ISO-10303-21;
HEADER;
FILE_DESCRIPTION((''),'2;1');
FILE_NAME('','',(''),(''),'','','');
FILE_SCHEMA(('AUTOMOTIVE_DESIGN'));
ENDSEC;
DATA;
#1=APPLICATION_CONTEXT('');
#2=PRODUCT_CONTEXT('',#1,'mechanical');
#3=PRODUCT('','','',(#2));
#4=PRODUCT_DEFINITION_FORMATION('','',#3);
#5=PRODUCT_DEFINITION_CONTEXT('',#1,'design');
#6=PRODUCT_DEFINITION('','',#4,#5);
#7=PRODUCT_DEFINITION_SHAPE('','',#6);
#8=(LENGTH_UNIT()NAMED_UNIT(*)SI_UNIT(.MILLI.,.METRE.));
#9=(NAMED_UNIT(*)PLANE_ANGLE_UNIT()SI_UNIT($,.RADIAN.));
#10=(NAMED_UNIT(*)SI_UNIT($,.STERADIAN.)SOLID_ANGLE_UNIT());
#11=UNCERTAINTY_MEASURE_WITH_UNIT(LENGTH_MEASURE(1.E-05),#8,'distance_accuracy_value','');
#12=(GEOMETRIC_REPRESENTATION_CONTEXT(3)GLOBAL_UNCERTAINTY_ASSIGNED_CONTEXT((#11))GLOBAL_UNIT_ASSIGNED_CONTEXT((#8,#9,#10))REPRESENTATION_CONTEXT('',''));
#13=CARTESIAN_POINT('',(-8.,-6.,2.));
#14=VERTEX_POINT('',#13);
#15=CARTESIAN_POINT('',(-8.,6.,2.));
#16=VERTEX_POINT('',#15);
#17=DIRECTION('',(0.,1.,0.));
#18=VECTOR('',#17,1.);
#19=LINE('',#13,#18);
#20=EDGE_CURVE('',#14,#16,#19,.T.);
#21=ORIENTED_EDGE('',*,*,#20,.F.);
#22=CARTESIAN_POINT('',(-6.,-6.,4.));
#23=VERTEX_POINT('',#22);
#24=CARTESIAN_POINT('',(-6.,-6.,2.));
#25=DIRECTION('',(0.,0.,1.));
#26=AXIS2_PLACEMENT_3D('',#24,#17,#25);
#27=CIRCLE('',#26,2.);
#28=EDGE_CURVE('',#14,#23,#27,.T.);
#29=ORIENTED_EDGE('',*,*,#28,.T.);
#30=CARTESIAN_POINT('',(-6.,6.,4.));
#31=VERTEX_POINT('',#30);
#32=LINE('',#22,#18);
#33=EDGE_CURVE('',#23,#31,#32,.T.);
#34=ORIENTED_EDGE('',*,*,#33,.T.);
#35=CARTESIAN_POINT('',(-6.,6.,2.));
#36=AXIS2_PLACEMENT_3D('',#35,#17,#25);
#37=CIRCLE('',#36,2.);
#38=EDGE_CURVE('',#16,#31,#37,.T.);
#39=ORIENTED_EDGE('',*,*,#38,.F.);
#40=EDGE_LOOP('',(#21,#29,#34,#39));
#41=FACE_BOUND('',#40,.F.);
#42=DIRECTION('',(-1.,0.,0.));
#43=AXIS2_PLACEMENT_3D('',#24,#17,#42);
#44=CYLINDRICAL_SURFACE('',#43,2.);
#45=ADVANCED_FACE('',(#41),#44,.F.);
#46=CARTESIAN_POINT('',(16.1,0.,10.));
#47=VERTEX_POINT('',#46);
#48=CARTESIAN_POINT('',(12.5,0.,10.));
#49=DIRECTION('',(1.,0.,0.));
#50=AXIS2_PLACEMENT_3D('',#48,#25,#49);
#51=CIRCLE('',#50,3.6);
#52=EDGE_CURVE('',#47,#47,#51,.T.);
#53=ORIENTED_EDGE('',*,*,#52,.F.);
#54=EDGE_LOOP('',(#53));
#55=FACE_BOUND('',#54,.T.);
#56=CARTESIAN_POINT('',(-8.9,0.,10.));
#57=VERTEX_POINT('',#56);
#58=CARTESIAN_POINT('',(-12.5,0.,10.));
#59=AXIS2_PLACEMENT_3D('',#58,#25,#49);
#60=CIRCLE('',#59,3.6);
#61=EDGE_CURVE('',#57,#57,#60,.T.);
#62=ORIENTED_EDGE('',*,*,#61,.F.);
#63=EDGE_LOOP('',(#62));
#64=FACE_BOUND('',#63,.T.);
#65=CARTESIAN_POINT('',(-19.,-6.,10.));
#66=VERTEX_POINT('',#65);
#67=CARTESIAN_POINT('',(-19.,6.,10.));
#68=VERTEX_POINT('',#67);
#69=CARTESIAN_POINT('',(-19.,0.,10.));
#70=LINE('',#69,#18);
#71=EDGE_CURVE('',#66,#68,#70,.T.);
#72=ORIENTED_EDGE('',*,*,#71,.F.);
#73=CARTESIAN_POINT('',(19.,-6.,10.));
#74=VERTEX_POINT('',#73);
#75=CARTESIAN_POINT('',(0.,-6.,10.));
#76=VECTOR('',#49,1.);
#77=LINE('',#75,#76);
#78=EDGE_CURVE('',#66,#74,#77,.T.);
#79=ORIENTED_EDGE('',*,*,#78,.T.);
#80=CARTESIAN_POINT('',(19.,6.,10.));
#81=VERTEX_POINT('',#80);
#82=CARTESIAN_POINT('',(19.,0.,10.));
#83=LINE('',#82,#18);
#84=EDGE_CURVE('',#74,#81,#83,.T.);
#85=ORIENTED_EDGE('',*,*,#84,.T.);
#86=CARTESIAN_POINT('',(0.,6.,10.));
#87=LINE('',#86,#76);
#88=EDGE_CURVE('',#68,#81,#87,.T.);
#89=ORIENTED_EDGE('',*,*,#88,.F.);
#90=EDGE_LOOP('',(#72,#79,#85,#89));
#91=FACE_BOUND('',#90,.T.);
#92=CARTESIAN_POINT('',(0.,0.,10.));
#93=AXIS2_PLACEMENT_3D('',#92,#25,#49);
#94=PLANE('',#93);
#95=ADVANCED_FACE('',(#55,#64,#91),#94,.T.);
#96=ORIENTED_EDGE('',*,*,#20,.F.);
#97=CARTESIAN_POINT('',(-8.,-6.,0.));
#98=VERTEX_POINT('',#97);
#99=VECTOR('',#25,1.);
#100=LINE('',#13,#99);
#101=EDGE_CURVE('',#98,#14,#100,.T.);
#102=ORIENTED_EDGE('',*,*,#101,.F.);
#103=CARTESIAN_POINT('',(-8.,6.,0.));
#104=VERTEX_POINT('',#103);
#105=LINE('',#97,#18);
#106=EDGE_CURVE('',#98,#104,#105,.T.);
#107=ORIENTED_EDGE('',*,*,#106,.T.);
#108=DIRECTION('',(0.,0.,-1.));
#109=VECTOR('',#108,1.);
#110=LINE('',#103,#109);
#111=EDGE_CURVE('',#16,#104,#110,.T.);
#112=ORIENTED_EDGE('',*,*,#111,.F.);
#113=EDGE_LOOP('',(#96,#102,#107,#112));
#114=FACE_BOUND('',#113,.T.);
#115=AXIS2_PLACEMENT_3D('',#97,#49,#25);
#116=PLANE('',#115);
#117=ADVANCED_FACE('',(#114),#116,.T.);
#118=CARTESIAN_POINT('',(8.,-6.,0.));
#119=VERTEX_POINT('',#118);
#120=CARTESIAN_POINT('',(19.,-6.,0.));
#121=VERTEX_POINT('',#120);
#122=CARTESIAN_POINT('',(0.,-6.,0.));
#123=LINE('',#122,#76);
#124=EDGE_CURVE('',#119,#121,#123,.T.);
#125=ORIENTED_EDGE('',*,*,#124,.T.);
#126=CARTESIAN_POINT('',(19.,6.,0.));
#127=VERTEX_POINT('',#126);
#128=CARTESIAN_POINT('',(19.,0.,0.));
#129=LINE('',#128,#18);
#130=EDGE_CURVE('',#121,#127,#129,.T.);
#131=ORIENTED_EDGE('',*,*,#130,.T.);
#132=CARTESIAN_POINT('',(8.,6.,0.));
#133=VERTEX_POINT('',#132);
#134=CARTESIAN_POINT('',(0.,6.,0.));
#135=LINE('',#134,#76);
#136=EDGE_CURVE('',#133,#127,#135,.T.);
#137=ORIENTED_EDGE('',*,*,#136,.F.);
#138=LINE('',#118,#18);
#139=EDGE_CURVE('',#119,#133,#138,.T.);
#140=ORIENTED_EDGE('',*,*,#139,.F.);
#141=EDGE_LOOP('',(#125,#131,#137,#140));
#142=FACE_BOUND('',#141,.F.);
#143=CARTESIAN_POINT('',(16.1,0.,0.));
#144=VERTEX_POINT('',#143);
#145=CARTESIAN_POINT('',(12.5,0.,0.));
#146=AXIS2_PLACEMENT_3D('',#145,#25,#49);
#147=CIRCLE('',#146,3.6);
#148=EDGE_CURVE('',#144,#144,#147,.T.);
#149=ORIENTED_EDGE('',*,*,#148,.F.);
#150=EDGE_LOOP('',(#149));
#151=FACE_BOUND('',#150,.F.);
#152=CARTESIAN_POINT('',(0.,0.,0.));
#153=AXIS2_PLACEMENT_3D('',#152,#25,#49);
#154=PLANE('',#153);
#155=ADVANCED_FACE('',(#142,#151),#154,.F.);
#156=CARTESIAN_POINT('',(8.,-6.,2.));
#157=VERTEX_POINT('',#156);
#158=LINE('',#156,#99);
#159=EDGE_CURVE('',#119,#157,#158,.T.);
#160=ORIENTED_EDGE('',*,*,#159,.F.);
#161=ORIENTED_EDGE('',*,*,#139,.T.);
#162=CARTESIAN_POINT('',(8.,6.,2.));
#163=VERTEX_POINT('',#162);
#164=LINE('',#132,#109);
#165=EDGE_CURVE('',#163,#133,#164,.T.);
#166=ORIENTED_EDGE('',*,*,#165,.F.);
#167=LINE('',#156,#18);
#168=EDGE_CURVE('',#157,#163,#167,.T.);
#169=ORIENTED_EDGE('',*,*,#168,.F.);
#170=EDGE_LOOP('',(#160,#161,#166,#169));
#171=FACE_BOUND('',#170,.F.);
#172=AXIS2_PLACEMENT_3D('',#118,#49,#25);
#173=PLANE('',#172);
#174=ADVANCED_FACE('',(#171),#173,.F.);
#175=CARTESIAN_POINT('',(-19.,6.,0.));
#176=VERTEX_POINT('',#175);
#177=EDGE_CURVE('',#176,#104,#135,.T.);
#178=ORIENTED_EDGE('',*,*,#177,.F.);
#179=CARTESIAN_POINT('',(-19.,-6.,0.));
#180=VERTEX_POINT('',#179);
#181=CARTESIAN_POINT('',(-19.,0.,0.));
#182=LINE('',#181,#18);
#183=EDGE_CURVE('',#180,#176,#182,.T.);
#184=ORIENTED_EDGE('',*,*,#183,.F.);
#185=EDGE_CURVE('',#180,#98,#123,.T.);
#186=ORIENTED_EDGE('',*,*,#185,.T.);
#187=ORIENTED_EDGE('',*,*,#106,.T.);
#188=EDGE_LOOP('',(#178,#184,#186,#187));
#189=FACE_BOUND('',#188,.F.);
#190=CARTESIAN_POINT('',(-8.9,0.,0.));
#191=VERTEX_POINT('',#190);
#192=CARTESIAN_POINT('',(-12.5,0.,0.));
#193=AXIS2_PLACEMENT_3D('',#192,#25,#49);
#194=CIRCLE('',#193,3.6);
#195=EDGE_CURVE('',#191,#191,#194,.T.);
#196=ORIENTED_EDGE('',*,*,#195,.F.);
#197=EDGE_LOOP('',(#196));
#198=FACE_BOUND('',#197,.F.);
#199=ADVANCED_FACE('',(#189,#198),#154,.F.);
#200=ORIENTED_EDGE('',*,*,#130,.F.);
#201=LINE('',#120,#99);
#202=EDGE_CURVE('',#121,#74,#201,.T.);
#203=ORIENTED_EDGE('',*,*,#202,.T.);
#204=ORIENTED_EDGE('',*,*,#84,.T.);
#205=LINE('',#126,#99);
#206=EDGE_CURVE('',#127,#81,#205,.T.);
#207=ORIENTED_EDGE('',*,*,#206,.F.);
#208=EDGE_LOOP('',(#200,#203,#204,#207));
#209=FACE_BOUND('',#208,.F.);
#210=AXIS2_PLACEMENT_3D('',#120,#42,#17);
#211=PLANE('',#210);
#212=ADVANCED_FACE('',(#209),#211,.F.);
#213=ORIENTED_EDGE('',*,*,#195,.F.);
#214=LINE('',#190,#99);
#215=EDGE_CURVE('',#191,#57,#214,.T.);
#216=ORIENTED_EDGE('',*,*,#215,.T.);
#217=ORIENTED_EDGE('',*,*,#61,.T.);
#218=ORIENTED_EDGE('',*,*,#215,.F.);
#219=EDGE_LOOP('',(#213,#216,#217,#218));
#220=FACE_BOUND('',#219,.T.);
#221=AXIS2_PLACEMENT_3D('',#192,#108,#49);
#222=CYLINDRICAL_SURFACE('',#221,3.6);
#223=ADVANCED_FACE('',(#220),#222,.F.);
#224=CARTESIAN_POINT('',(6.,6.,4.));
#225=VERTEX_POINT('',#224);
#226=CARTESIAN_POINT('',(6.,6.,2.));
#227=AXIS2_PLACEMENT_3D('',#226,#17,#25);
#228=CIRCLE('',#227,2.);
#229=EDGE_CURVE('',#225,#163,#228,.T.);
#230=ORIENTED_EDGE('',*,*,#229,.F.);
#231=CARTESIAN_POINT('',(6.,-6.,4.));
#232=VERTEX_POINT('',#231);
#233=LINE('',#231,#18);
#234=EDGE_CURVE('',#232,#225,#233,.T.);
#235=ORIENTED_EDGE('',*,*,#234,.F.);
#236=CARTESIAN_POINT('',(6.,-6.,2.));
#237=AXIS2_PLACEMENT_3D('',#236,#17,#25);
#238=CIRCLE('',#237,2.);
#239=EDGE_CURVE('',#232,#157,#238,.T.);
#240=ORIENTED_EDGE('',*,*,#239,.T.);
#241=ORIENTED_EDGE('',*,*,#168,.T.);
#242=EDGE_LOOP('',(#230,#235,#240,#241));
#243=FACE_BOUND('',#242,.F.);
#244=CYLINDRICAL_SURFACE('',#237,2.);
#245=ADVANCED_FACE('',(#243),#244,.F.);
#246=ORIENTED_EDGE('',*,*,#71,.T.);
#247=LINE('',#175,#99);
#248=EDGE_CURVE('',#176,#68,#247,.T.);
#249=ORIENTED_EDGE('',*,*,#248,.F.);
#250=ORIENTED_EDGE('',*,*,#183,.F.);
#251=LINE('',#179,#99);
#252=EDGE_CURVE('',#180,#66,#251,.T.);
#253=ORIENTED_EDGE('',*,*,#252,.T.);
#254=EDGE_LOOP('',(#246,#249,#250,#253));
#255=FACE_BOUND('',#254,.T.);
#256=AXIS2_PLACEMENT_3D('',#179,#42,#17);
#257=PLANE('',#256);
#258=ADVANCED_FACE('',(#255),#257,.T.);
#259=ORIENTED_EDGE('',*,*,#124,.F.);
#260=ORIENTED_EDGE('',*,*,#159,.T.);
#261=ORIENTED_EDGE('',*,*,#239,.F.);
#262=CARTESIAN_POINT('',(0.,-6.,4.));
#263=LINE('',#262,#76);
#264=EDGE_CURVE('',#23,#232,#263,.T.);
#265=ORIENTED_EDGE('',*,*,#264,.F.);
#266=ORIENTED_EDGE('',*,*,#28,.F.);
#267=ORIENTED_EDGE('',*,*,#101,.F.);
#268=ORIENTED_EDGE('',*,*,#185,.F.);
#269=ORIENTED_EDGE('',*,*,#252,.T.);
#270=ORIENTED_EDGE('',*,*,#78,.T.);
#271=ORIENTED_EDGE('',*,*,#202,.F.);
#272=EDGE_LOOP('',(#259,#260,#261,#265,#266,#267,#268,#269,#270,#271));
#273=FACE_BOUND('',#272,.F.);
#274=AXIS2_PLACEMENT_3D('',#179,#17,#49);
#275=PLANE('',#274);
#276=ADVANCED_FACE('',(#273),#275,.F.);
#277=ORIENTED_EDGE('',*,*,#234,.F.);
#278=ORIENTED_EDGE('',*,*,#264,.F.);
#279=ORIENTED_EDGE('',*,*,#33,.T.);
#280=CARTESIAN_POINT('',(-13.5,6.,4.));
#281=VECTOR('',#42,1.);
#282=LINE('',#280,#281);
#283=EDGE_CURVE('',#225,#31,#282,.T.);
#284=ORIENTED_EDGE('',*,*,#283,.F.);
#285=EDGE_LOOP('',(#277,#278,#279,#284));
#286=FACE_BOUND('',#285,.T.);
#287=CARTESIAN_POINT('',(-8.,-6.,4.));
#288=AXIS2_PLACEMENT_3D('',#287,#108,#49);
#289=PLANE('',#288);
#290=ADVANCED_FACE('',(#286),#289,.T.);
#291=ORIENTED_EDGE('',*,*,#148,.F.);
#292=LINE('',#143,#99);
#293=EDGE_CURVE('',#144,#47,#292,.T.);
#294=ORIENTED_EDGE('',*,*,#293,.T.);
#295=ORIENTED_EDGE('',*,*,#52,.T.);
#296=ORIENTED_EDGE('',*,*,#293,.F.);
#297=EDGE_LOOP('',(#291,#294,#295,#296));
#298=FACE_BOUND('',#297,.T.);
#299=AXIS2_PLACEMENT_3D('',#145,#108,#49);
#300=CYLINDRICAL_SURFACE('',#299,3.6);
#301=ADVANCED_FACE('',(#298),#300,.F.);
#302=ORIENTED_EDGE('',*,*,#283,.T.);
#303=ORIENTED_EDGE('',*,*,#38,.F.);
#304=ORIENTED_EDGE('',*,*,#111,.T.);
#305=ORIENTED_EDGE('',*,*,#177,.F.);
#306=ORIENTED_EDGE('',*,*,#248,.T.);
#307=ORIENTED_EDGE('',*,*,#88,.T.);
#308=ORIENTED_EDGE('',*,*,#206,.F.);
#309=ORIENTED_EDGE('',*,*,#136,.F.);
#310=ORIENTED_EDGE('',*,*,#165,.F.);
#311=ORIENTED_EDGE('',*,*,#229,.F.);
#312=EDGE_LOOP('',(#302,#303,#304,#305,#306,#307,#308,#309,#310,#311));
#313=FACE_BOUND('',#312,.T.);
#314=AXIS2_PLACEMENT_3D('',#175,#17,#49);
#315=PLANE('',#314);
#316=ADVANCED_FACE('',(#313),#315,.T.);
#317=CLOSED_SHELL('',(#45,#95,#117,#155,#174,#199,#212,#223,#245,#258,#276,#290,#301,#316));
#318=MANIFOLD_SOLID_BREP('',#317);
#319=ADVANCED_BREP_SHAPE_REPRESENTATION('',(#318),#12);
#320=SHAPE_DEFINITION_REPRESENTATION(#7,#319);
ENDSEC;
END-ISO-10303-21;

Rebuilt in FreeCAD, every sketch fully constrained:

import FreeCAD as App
import Part
import Sketcher


def edges_at(feature, points):
    """Names of the edges that pass closest to the given points."""
    edges = feature.Shape.Edges
    near = lambda p: min(range(len(edges)), key=lambda i: edges[i].distToShape(Part.Vertex(*p))[0])
    return sorted({f"Edge{near(p) + 1}" for p in points})


def add_polygon(sketch, points):
    """Adds a closed chain of lines whose ends are joined by coincident constraints."""
    first, n = sketch.GeometryCount, len(points)
    for a, b in zip(points, points[1:] + points[:1]):
        sketch.addGeometry(Part.LineSegment(App.Vector(*a, 0), App.Vector(*b, 0)), False)
    for i in range(n):
        sketch.addConstraint(Sketcher.Constraint("Coincident", first + i, 2, first + (i + 1) % n, 1))

doc = App.newDocument("Part")
body = doc.addObject("PartDesign::Body", "Body")

# Sketch on XY plane
sketch1 = body.newObject("Sketcher::SketchObject", "Sketch")
sketch1.AttachmentSupport = (doc.getObject("XY_Plane"), [""])
sketch1.MapMode = "FlatFace"
add_polygon(sketch1, [(-19, 6), (-19, -6), (19, -6), (19, 6)])  # lines 0-3
sketch1.addGeometry(Part.Circle(App.Vector(-12.5, 0, 0), App.Vector(0, 0, 1), 3.6), False)  # 4
sketch1.addGeometry(Part.Circle(App.Vector(12.5, 0, 0), App.Vector(0, 0, 1), 3.6), False)  # 5
sketch1.addConstraint([
    Sketcher.Constraint("Vertical", 0),
    Sketcher.Constraint("Horizontal", 1),
    Sketcher.Constraint("Vertical", 2),
    Sketcher.Constraint("Horizontal", 3),
    Sketcher.Constraint("Equal", 4, 5),
    Sketcher.Constraint("Symmetric", 4, 3, 5, 3, -1, 1),
    Sketcher.Constraint("Symmetric", 0, 2, 2, 2, -1, 1),
    Sketcher.Constraint("PointOnObject", 4, 3, -1),
    Sketcher.Constraint("Diameter", 4, 7.2),
    Sketcher.Constraint("DistanceX", 1, 1, 1, 2, 38.0),
    Sketcher.Constraint("DistanceY", 0, 2, 0, 1, 12.0),
    Sketcher.Constraint("DistanceX", 4, 3, 5, 3, 25.0),
])
pad1 = body.newObject("PartDesign::Pad", "Pad")
pad1.Profile = sketch1
pad1.Length = 10

# Sketch on XZ plane
sketch2 = body.newObject("Sketcher::SketchObject", "Sketch001")
sketch2.AttachmentSupport = (doc.getObject("XZ_Plane"), [""])
sketch2.MapMode = "FlatFace"
sketch2.AttachmentOffset = App.Placement(App.Vector(0, 0, 6), App.Rotation())
add_polygon(sketch2, [(-8, 4), (-8, 0), (8, 0), (8, 4)])  # lines 0-3
sketch2.addConstraint([
    Sketcher.Constraint("Vertical", 0),
    Sketcher.Constraint("Horizontal", 1),
    Sketcher.Constraint("Vertical", 2),
    Sketcher.Constraint("Horizontal", 3),
    Sketcher.Constraint("Symmetric", 0, 2, 1, 2, -1, 1),
    Sketcher.Constraint("DistanceX", 1, 1, 1, 2, 16.0),
    Sketcher.Constraint("DistanceY", 0, 2, 0, 1, 4.0),
])
pocket1 = body.newObject("PartDesign::Pocket", "Pocket")
pocket1.Profile = sketch2
pocket1.Type = "ThroughAll"
doc.recompute()

fillet = body.newObject("PartDesign::Fillet", "Fillet")
fillet.Base = (pocket1, edges_at(pocket1, [(-8, 0, 4), (8, 0, 4)]))
fillet.Radius = 2

doc.recompute()
